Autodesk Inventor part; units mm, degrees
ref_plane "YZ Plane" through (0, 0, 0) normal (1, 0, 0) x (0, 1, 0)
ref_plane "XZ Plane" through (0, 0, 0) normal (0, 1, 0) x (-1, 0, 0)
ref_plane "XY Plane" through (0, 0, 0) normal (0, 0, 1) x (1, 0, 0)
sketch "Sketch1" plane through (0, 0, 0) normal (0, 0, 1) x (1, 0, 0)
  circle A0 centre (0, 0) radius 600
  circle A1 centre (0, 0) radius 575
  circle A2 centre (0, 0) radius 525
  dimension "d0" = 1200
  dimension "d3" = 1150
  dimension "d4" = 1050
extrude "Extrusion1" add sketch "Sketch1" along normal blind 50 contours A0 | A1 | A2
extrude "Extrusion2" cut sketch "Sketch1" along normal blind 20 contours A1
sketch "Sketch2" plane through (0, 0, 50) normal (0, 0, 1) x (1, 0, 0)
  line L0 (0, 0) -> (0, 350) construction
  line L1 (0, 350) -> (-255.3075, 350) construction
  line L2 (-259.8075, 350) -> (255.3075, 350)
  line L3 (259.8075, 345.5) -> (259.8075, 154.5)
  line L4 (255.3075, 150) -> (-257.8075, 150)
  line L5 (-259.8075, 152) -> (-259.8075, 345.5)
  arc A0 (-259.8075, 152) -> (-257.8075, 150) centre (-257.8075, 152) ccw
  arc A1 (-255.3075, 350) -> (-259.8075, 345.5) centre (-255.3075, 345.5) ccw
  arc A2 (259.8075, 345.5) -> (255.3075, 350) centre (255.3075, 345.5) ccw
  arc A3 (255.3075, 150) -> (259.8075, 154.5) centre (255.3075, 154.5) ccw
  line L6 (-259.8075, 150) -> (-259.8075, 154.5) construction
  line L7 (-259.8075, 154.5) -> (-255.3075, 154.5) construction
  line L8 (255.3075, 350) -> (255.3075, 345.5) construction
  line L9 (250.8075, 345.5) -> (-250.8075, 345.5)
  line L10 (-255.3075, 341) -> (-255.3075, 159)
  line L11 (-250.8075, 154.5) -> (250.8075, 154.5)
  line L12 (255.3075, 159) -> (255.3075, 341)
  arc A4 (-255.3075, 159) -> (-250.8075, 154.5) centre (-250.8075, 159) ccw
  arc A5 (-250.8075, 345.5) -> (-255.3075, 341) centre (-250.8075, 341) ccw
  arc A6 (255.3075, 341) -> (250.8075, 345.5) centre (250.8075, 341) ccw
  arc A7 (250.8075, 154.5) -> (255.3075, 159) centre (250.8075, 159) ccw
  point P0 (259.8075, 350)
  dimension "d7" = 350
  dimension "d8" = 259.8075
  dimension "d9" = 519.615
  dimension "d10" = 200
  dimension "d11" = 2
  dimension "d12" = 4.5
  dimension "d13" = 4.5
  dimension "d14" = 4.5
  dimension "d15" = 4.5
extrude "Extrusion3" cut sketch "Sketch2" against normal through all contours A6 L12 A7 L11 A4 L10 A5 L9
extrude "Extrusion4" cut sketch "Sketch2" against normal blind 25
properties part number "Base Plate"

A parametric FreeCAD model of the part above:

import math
import FreeCAD as App
import Part
import Sketcher
from FreeCAD import Vector
Q = App.Units.Quantity

doc = App.newDocument("Part")
params = doc.addObject("Spreadsheet::Sheet", "Params")
for row, (alias, value) in enumerate([
    ("sketch1_diameter", "1200 mm"),
    ("pad1_length", "50 mm"),
    ("sketch2_diameter", "1150 mm"),
    ("sketch2_diameter2", "1050 mm"),
    ("pocket1_length", "20 mm"),
    ("sketch3_radius", "4.5 mm"),
    ("sketch3_height", "182 mm"),
    ("sketch4_radius", "2 mm"),
    ("sketch4_radius2", "4.5 mm"),
    ("sketch4_height", "191 mm"),
    ("pocket3_length", "25 mm"),
], start=1):
    params.set(f"A{row}", alias)
    params.set(f"B{row}", "=" + value)
    params.setAlias(f"B{row}", alias)

body = doc.addObject("PartDesign::Body", "Body")

# Sketch on XY plane
sketch1 = body.newObject("Sketcher::SketchObject", "Sketch")
sketch1.AttachmentSupport = (doc.getObject("XY_Plane"), [""])
sketch1.MapMode = "FlatFace"
sketch1.addGeometry(Part.Circle(Vector(0, 0, 0), Vector(0, 0, 1), 600), False)
sketch1.addConstraint([
    Sketcher.Constraint("Coincident", 0, 3, -1, 1),
    Sketcher.Constraint("Diameter", 0, Q("1200 mm")),
])
sketch1.setExpression("Constraints[1]", "Params.sketch1_diameter")
pad1 = body.newObject("PartDesign::Pad", "Pad")
pad1.Profile = sketch1
pad1.setExpression("Length", "Params.pad1_length")

# Sketch on XY plane
sketch2 = body.newObject("Sketcher::SketchObject", "Sketch001")
sketch2.AttachmentSupport = (doc.getObject("XY_Plane"), [""])
sketch2.MapMode = "FlatFace"
sketch2.addGeometry([
    Part.Circle(Vector(0, 0, 0), Vector(0, 0, 1), 575),
    Part.Circle(Vector(0, 0, 0), Vector(0, 0, 1), 525),
], False)
sketch2.addConstraint([
    Sketcher.Constraint("Coincident", 0, 3, -1, 1),
    Sketcher.Constraint("Coincident", 1, 3, -1, 1),
    Sketcher.Constraint("Diameter", 0, Q("1150 mm")),
    Sketcher.Constraint("Diameter", 1, Q("1050 mm")),
])
sketch2.setExpression("Constraints[2]", "Params.sketch2_diameter")
sketch2.setExpression("Constraints[3]", "Params.sketch2_diameter2")
pocket1 = body.newObject("PartDesign::Pocket", "Pocket")
pocket1.Profile = sketch2
pocket1.setExpression("Length", "Params.pocket1_length")
pocket1.Reversed = True

# Sketch on XY plane
sketch3 = body.newObject("Sketcher::SketchObject", "Sketch002")
sketch3.AttachmentSupport = (doc.getObject("XY_Plane"), [""])
sketch3.MapMode = "FlatFace"
sketch3.AttachmentOffset = App.Placement(Vector(0, 0, 50), App.Rotation())
sketch3.addGeometry([
    Part.ArcOfCircle(Part.Circle(Vector(250.8, 341, 0), Vector(0, 0, 1), 4.5), math.radians(0), math.radians(90)),  # 0
    Part.LineSegment(Vector(250.8, 345.5, 0), Vector(-250.8, 345.5, 0)),  # 1
    Part.ArcOfCircle(Part.Circle(Vector(-250.8, 341, 0), Vector(0, 0, 1), 4.5), math.radians(90), math.radians(180)),  # 2
    Part.LineSegment(Vector(-255.3, 341, 0), Vector(-255.3, 159, 0)),  # 3
    Part.ArcOfCircle(Part.Circle(Vector(-250.8, 159, 0), Vector(0, 0, 1), 4.5), math.radians(180), math.radians(270)),  # 4
    Part.LineSegment(Vector(-250.8, 154.5, 0), Vector(250.8, 154.5, 0)),  # 5
    Part.ArcOfCircle(Part.Circle(Vector(250.8, 159, 0), Vector(0, 0, 1), 4.5), math.radians(-90), math.radians(0)),  # 6
    Part.LineSegment(Vector(255.3, 159, 0), Vector(255.3, 341, 0)),  # 7
], False)
sketch3.addConstraint([
    Sketcher.Constraint("Tangent", 0, 2, 1, 1),
    Sketcher.Constraint("Tangent", 1, 2, 2, 1),
    Sketcher.Constraint("Tangent", 2, 2, 3, 1),
    Sketcher.Constraint("Tangent", 3, 2, 4, 1),
    Sketcher.Constraint("Tangent", 4, 2, 5, 1),
    Sketcher.Constraint("Tangent", 5, 2, 6, 1),
    Sketcher.Constraint("Tangent", 6, 2, 7, 1),
    Sketcher.Constraint("Tangent", 7, 2, 0, 1),
    Sketcher.Constraint("Horizontal", 1),
    Sketcher.Constraint("Vertical", 3),
    Sketcher.Constraint("Horizontal", 5),
    Sketcher.Constraint("Vertical", 7),
    Sketcher.Constraint("Equal", 0, 2),
    Sketcher.Constraint("Equal", 2, 4),
    Sketcher.Constraint("Equal", 4, 6),
    Sketcher.Constraint("Radius", 0, Q("4.5 mm")),
    Sketcher.Constraint("DistanceY", 3, 2, 3, 1, Q("182 mm")),
    Sketcher.Constraint("DistanceY", -1, 1, 0, 3, Q("341 mm")),
    Sketcher.Constraint("DistanceX", 1, 2, 1, 1, Q("501.615 mm")),
    Sketcher.Constraint("DistanceX", -1, 1, 0, 3, Q("250.8075 mm")),
])
sketch3.setExpression("Constraints[15]", "Params.sketch3_radius")
sketch3.setExpression("Constraints[16]", "Params.sketch3_height")
pocket2 = body.newObject("PartDesign::Pocket", "Pocket001")
pocket2.Profile = sketch3
pocket2.Type = "ThroughAll"

# Sketch on XY plane
sketch4 = body.newObject("Sketcher::SketchObject", "Sketch003")
sketch4.AttachmentSupport = (doc.getObject("XY_Plane"), [""])
sketch4.MapMode = "FlatFace"
sketch4.AttachmentOffset = App.Placement(Vector(0, 0, 50), App.Rotation())
sketch4.addGeometry([
    Part.LineSegment(Vector(255.3, 350, 0), Vector(-255.3, 350, 0)),  # 0
    Part.ArcOfCircle(Part.Circle(Vector(-255.3, 345.5, 0), Vector(0, 0, 1), 4.5), math.radians(90), math.radians(180)),  # 1
    Part.LineSegment(Vector(-259.8, 345.5, 0), Vector(-259.8, 152, 0)),  # 2
    Part.ArcOfCircle(Part.Circle(Vector(-257.8, 152, 0), Vector(0, 0, 1), 2), math.radians(180), math.radians(270)),  # 3
    Part.LineSegment(Vector(-257.8, 150, 0), Vector(255.3, 150, 0)),  # 4
    Part.ArcOfCircle(Part.Circle(Vector(255.3, 154.5, 0), Vector(0, 0, 1), 4.5), math.radians(-90), math.radians(0)),  # 5
    Part.LineSegment(Vector(259.8, 154.5, 0), Vector(259.8, 345.5, 0)),  # 6
    Part.ArcOfCircle(Part.Circle(Vector(255.3, 345.5, 0), Vector(0, 0, 1), 4.5), math.radians(0), math.radians(90)),  # 7
    Part.LineSegment(Vector(-250.8, 345.5, 0), Vector(250.8, 345.5, 0)),  # 8
    Part.ArcOfCircle(Part.Circle(Vector(250.8, 341, 0), Vector(0, 0, 1), 4.5), math.radians(0), math.radians(90)),  # 9
    Part.LineSegment(Vector(255.3, 341, 0), Vector(255.3, 159, 0)),  # 10
    Part.ArcOfCircle(Part.Circle(Vector(250.8, 159, 0), Vector(0, 0, 1), 4.5), math.radians(-90), math.radians(0)),  # 11
    Part.LineSegment(Vector(250.8, 154.5, 0), Vector(-250.8, 154.5, 0)),  # 12
    Part.ArcOfCircle(Part.Circle(Vector(-250.8, 159, 0), Vector(0, 0, 1), 4.5), math.radians(180), math.radians(270)),  # 13
    Part.LineSegment(Vector(-255.3, 159, 0), Vector(-255.3, 341, 0)),  # 14
    Part.ArcOfCircle(Part.Circle(Vector(-250.8, 341, 0), Vector(0, 0, 1), 4.5), math.radians(90), math.radians(180)),  # 15
], False)
sketch4.addConstraint([
    Sketcher.Constraint("Tangent", 0, 2, 1, 1),
    Sketcher.Constraint("Tangent", 1, 2, 2, 1),
    Sketcher.Constraint("Tangent", 2, 2, 3, 1),
    Sketcher.Constraint("Tangent", 3, 2, 4, 1),
    Sketcher.Constraint("Tangent", 4, 2, 5, 1),
    Sketcher.Constraint("Tangent", 5, 2, 6, 1),
    Sketcher.Constraint("Tangent", 6, 2, 7, 1),
    Sketcher.Constraint("Tangent", 7, 2, 0, 1),
    Sketcher.Constraint("Tangent", 8, 2, 9, 2),
    Sketcher.Constraint("Tangent", 9, 1, 10, 1),
    Sketcher.Constraint("Tangent", 10, 2, 11, 2),
    Sketcher.Constraint("Tangent", 11, 1, 12, 1),
    Sketcher.Constraint("Tangent", 12, 2, 13, 2),
    Sketcher.Constraint("Tangent", 13, 1, 14, 1),
    Sketcher.Constraint("Tangent", 14, 2, 15, 2),
    Sketcher.Constraint("Tangent", 15, 1, 8, 1),
    Sketcher.Constraint("Horizontal", 0),
    Sketcher.Constraint("Vertical", 2),
    Sketcher.Constraint("Horizontal", 4),
    Sketcher.Constraint("Vertical", 6),
    Sketcher.Constraint("Horizontal", 8),
    Sketcher.Constraint("Vertical", 10),
    Sketcher.Constraint("Horizontal", 12),
    Sketcher.Constraint("Vertical", 14),
    Sketcher.Constraint("Equal", 1, 5),
    Sketcher.Constraint("Equal", 5, 7),
    Sketcher.Constraint("Equal", 7, 9),
    Sketcher.Constraint("Equal", 9, 11),
    Sketcher.Constraint("Equal", 11, 13),
    Sketcher.Constraint("Equal", 13, 15),
    Sketcher.Constraint("Horizontal", 6, 2, 8, 2),
    Sketcher.Constraint("Horizontal", 5, 2, 11, 1),
    Sketcher.Constraint("Vertical", 7, 2, 9, 1),
    Sketcher.Constraint("Vertical", 0, 2, 13, 1),
    Sketcher.Constraint("Radius", 3, Q("2 mm")),
    Sketcher.Constraint("Radius", 1, Q("4.5 mm")),
    Sketcher.Constraint("DistanceY", -1, 1, 0, 2, Q("350 mm")),
    Sketcher.Constraint("DistanceY", 6, 1, 6, 2, Q("191 mm")),
    Sketcher.Constraint("DistanceX", 1, 2, -1, 1, Q("259.8075 mm")),
    Sketcher.Constraint("DistanceX", -1, 1, 5, 2, Q("259.8075 mm")),
])
sketch4.setExpression("Constraints[34]", "Params.sketch4_radius")
sketch4.setExpression("Constraints[35]", "Params.sketch4_radius2")
sketch4.setExpression("Constraints[37]", "Params.sketch4_height")
pocket3 = body.newObject("PartDesign::Pocket", "Pocket002")
pocket3.Profile = sketch4
pocket3.setExpression("Length", "Params.pocket3_length")

doc.recompute()
